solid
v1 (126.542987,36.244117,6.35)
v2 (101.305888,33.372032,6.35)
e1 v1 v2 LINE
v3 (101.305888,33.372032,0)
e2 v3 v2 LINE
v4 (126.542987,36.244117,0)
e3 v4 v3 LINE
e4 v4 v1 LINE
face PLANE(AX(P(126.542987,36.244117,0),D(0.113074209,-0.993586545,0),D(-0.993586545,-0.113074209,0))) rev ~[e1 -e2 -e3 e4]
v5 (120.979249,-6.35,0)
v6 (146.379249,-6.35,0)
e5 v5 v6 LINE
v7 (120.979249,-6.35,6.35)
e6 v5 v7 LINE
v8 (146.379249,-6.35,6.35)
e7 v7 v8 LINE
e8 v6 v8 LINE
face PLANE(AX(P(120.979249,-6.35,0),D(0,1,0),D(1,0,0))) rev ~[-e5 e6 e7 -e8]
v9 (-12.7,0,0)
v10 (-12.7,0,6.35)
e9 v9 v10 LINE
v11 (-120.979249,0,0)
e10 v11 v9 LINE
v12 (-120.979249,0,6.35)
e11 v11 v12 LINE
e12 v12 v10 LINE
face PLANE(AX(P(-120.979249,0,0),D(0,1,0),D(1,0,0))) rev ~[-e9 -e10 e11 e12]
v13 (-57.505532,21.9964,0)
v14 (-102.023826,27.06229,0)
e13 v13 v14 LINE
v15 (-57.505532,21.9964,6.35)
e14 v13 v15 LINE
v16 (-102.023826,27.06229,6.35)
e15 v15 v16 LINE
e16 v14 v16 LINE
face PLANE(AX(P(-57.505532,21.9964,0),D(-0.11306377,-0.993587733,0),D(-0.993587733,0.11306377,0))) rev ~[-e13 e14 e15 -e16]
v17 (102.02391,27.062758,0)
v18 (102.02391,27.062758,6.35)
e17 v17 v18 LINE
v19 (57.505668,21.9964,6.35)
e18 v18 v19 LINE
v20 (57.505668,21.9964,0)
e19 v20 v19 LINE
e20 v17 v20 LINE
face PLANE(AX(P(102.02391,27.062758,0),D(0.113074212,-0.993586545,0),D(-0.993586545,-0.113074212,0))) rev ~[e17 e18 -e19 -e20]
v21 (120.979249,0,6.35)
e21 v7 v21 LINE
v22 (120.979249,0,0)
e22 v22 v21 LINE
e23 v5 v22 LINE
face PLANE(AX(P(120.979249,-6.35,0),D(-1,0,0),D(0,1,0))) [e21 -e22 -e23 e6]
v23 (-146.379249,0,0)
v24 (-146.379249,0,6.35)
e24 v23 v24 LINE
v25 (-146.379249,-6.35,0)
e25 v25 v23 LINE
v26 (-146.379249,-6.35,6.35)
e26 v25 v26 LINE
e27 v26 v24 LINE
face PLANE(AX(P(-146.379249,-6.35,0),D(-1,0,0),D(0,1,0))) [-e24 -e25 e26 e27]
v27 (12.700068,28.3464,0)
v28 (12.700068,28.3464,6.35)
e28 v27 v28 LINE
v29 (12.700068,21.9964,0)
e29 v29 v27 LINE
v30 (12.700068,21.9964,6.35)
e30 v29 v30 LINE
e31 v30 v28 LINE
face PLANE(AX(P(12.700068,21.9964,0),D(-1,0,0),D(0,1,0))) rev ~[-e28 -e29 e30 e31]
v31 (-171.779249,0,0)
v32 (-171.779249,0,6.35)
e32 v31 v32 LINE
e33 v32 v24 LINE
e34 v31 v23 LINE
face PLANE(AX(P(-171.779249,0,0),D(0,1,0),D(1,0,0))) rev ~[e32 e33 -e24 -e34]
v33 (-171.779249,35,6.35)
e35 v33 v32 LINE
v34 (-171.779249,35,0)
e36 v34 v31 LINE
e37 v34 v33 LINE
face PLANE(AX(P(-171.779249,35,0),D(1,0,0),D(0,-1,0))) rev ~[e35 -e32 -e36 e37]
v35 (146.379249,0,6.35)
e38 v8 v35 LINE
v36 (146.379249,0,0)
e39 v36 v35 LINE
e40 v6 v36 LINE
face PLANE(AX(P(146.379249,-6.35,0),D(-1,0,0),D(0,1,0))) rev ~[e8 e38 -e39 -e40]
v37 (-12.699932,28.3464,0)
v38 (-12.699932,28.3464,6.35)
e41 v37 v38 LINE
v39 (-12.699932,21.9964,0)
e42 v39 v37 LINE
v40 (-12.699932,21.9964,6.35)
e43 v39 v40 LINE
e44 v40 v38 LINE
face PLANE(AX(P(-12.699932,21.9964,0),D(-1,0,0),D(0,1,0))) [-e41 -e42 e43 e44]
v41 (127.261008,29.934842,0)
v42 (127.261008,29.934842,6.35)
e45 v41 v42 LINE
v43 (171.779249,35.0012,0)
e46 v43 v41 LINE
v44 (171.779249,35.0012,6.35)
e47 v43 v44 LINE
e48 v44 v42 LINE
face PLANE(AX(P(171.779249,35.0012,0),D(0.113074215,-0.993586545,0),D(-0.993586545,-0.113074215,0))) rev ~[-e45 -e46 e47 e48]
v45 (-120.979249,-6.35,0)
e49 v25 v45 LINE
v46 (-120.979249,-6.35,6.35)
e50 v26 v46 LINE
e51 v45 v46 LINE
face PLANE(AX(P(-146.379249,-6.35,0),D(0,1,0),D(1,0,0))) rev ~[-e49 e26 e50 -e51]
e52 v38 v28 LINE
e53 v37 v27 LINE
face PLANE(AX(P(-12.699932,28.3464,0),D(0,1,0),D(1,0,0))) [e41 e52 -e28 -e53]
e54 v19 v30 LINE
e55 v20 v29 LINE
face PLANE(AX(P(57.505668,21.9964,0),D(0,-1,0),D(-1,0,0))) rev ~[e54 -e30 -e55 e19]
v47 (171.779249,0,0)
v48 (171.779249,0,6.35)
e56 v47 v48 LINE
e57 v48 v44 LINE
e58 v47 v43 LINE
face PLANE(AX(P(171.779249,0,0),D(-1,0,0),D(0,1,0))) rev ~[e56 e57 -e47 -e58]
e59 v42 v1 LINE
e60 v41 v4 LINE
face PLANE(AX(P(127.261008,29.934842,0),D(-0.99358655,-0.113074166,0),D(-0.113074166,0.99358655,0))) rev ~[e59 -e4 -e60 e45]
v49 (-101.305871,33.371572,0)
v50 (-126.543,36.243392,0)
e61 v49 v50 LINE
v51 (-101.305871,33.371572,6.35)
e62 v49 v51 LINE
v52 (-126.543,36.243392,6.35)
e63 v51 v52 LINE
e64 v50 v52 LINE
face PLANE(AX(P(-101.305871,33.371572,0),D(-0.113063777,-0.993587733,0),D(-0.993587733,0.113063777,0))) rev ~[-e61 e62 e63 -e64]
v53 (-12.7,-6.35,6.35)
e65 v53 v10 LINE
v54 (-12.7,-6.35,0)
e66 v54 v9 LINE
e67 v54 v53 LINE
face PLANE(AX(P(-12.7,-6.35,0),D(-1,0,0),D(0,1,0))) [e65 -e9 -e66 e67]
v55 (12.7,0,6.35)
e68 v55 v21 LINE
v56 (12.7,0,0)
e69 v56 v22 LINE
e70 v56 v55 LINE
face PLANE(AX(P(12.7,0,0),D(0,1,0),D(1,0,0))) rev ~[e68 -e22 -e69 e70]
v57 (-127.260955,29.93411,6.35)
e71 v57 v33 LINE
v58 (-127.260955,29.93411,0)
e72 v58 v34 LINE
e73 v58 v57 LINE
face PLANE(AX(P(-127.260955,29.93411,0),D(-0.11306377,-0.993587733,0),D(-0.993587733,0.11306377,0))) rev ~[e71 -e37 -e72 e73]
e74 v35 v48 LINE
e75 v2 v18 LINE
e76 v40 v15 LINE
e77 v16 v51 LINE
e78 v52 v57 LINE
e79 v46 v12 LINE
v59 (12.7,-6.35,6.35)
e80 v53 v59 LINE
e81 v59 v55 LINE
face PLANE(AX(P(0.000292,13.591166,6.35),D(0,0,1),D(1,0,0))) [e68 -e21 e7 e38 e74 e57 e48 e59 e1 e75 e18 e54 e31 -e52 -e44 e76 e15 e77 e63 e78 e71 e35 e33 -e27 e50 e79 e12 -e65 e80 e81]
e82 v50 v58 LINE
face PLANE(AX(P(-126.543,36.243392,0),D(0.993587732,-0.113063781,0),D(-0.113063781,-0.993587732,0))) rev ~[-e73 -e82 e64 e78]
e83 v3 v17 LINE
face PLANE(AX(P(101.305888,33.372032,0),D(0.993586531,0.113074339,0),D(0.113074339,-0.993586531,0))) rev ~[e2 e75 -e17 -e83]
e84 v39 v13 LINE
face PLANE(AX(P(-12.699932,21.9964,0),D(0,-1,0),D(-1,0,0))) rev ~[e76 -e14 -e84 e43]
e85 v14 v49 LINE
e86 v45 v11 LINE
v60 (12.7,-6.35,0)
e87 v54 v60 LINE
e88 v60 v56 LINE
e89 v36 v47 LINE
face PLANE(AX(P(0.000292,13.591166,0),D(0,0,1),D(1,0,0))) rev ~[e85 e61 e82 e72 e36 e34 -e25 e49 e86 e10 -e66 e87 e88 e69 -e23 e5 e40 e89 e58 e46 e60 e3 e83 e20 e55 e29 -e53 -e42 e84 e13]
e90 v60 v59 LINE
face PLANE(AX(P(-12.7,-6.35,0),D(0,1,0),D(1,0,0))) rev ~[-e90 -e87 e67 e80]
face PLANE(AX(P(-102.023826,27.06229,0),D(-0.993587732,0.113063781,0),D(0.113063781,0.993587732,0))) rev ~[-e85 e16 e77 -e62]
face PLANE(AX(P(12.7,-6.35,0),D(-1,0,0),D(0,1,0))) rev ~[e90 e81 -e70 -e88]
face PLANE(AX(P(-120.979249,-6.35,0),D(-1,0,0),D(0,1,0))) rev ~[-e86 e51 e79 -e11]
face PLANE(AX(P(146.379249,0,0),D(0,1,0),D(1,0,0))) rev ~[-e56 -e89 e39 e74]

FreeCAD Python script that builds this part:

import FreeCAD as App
import Part
import Sketcher

V = App.Vector
Q = App.Units.Quantity

doc = App.newDocument("Part")
body = doc.addObject("PartDesign::Body", "Body")

sketch1 = doc.addObject("Sketcher::SketchObject", "Sketch")
body.addObject(sketch1)
sketch1.AttachmentSupport = (doc.XY_Plane, [""])
sketch1.MapMode = "FlatFace"
sketch1.addGeometry([
    Part.LineSegment(V(-171.779249, 35, 0), V(-171.779249, 0, 0)),
    Part.LineSegment(V(-171.779249, 0, 0), V(-146.379249, 0, 0)),
    Part.LineSegment(V(-146.379249, 0, 0), V(-146.379249, -6.35, 0)),
    Part.LineSegment(V(-146.379249, -6.35, 0), V(-120.979249, -6.35, 0)),
    Part.LineSegment(V(-120.979249, -6.35, 0), V(-120.979249, 0, 0)),
    Part.LineSegment(V(-120.979249, 0, 0), V(-12.7, 0, 0)),
    Part.LineSegment(V(-12.7, 0, 0), V(-12.7, -6.35, 0)),
    Part.LineSegment(V(-12.7, -6.35, 0), V(12.7, -6.35, 0)),
    Part.LineSegment(V(12.7, -6.35, 0), V(12.7, 0, 0)),
    Part.LineSegment(V(12.7, 0, 0), V(120.979249, 0, 0)),
    Part.LineSegment(V(120.979249, 0, 0), V(120.979249, -6.35, 0)),
    Part.LineSegment(V(120.979249, -6.35, 0), V(146.379249, -6.35, 0)),
    Part.LineSegment(V(146.379249, -6.35, 0), V(146.379249, 0, 0)),
    Part.LineSegment(V(146.379249, 0, 0), V(171.779249, 0, 0)),
    Part.LineSegment(V(171.779249, 0, 0), V(171.779249, 35.0012, 0)),
    Part.LineSegment(V(171.779249, 35.0012, 0), V(127.261008, 29.934842, 0)),
    Part.LineSegment(V(127.261008, 29.934842, 0), V(126.542987, 36.244117, 0)),
    Part.LineSegment(V(126.542987, 36.244117, 0), V(101.305888, 33.372032, 0)),
    Part.LineSegment(V(101.305888, 33.372032, 0), V(102.02391, 27.062758, 0)),
    Part.LineSegment(V(102.02391, 27.062758, 0), V(57.505668, 21.9964, 0)),
    Part.LineSegment(V(57.505668, 21.9964, 0), V(12.700068, 21.9964, 0)),
    Part.LineSegment(V(12.700068, 21.9964, 0), V(12.700068, 28.3464, 0)),
    Part.LineSegment(V(12.700068, 28.3464, 0), V(-12.699932, 28.3464, 0)),
    Part.LineSegment(V(-12.699932, 28.3464, 0), V(-12.699932, 21.9964, 0)),
    Part.LineSegment(V(-12.699932, 21.9964, 0), V(-57.505532, 21.9964, 0)),
    Part.LineSegment(V(-57.505532, 21.9964, 0), V(-102.023826, 27.06229, 0)),
    Part.LineSegment(V(-102.023826, 27.06229, 0), V(-101.305871, 33.371572, 0)),
    Part.LineSegment(V(-101.305871, 33.371572, 0), V(-126.543, 36.243392, 0)),
    Part.LineSegment(V(-126.543, 36.243392, 0), V(-127.260955, 29.93411, 0)),
    Part.LineSegment(V(-127.260955, 29.93411, 0), V(-171.779249, 35, 0)),
], False)
sketch1.addConstraint([
    Sketcher.Constraint("Coincident", 0, 2, 1, 1),
    Sketcher.Constraint("Coincident", 1, 2, 2, 1),
    Sketcher.Constraint("Coincident", 2, 2, 3, 1),
    Sketcher.Constraint("Coincident", 3, 2, 4, 1),
    Sketcher.Constraint("Coincident", 4, 2, 5, 1),
    Sketcher.Constraint("Coincident", 5, 2, 6, 1),
    Sketcher.Constraint("Coincident", 6, 2, 7, 1),
    Sketcher.Constraint("Coincident", 7, 2, 8, 1),
    Sketcher.Constraint("Coincident", 8, 2, 9, 1),
    Sketcher.Constraint("Coincident", 9, 2, 10, 1),
    Sketcher.Constraint("Coincident", 10, 2, 11, 1),
    Sketcher.Constraint("Coincident", 11, 2, 12, 1),
    Sketcher.Constraint("Coincident", 12, 2, 13, 1),
    Sketcher.Constraint("Coincident", 13, 2, 14, 1),
    Sketcher.Constraint("Coincident", 14, 2, 15, 1),
    Sketcher.Constraint("Coincident", 15, 2, 16, 1),
    Sketcher.Constraint("Coincident", 16, 2, 17, 1),
    Sketcher.Constraint("Coincident", 17, 2, 18, 1),
    Sketcher.Constraint("Coincident", 18, 2, 19, 1),
    Sketcher.Constraint("Coincident", 19, 2, 20, 1),
    Sketcher.Constraint("Coincident", 20, 2, 21, 1),
    Sketcher.Constraint("Coincident", 21, 2, 22, 1),
    Sketcher.Constraint("Coincident", 22, 2, 23, 1),
    Sketcher.Constraint("Coincident", 23, 2, 24, 1),
    Sketcher.Constraint("Coincident", 24, 2, 25, 1),
    Sketcher.Constraint("Coincident", 25, 2, 26, 1),
    Sketcher.Constraint("Coincident", 26, 2, 27, 1),
    Sketcher.Constraint("Coincident", 27, 2, 28, 1),
    Sketcher.Constraint("Coincident", 28, 2, 29, 1),
    Sketcher.Constraint("Coincident", 29, 2, 0, 1),
    Sketcher.Constraint("Vertical", 0),
    Sketcher.Constraint("Horizontal", 1),
    Sketcher.Constraint("Vertical", 2),
    Sketcher.Constraint("Horizontal", 3),
    Sketcher.Constraint("Vertical", 4),
    Sketcher.Constraint("Horizontal", 5),
    Sketcher.Constraint("Vertical", 6),
    Sketcher.Constraint("Horizontal", 7),
    Sketcher.Constraint("Vertical", 8),
    Sketcher.Constraint("Horizontal", 9),
    Sketcher.Constraint("Vertical", 10),
    Sketcher.Constraint("Horizontal", 11),
    Sketcher.Constraint("Vertical", 12),
    Sketcher.Constraint("Horizontal", 13),
    Sketcher.Constraint("Vertical", 14),
    Sketcher.Constraint("Horizontal", 20),
    Sketcher.Constraint("Vertical", 21),
    Sketcher.Constraint("Horizontal", 22),
    Sketcher.Constraint("Vertical", 23),
    Sketcher.Constraint("Horizontal", 24),
    Sketcher.Constraint("Symmetric", 5, 2, 8, 2, -1, 1),
    Sketcher.Constraint("Symmetric", 1, 2, 12, 2, -1, 1),
    Sketcher.Constraint("Symmetric", 4, 2, 9, 2, -2),
    Sketcher.Constraint("Symmetric", 0, 2, 13, 2, -2),
    Sketcher.Constraint("Perpendicular", 15, 16),
    Sketcher.Constraint("Perpendicular", 16, 17),
    Sketcher.Constraint("Perpendicular", 17, 18),
    Sketcher.Constraint("Perpendicular", 18, 19),
    Sketcher.Constraint("Perpendicular", 25, 26),
    Sketcher.Constraint("Perpendicular", 26, 27),
    Sketcher.Constraint("Perpendicular", 27, 28),
    Sketcher.Constraint("Perpendicular", 28, 29),
    Sketcher.Constraint("Horizontal", 3, 2, 6, 2),
    Sketcher.Constraint("Horizontal", 7, 2, 10, 2),
    Sketcher.Constraint("Horizontal", 20, 2, 23, 2),
    Sketcher.Constraint("Equal", 1, 3),
    Sketcher.Constraint("Equal", 3, 7),
    Sketcher.Constraint("Equal", 13, 22),
    Sketcher.Constraint("Equal", 20, 24),
    Sketcher.Constraint("Equal", 12, 21),
    Sketcher.Constraint("Equal", 16, 18),
    Sketcher.Constraint("Equal", 15, 19),
    Sketcher.Constraint("Equal", 19, 25),
    Sketcher.Constraint("Equal", 18, 26),
    Sketcher.Constraint("Equal", 17, 27),
    Sketcher.Constraint("Equal", 26, 28),
    Sketcher.Constraint("Equal", 25, 29),
    Sketcher.Constraint("DistanceX", 1, 1, 1, 2, Q("1 in")),
    Sketcher.Constraint("Distance", 17, Q("1 in")),
    Sketcher.Constraint("DistanceY", 2, 2, 2, 1, Q("0.25 in")),
    Sketcher.Constraint("Distance", 16, Q("0.25 in")),
    Sketcher.Constraint("DistanceX", 20, 2, 20, 1, Q("1.764 in")),
    Sketcher.Constraint("DistanceY", 14, 1, 14, 2, Q("1.378 in")),
    Sketcher.Constraint("Distance", 15, Q("1.764 in")),
    Sketcher.Constraint("DistanceY", -1, 1, 19, 2, Q("0.866 in")),
    Sketcher.Constraint("DistanceY", 0, 2, 0, 1, 35.0),
])
pad1 = doc.addObject("PartDesign::Pad", "Pad")
body.addObject(pad1)
pad1.Profile = sketch1
pad1.Length = Q("0.25 in")

doc.recompute()
